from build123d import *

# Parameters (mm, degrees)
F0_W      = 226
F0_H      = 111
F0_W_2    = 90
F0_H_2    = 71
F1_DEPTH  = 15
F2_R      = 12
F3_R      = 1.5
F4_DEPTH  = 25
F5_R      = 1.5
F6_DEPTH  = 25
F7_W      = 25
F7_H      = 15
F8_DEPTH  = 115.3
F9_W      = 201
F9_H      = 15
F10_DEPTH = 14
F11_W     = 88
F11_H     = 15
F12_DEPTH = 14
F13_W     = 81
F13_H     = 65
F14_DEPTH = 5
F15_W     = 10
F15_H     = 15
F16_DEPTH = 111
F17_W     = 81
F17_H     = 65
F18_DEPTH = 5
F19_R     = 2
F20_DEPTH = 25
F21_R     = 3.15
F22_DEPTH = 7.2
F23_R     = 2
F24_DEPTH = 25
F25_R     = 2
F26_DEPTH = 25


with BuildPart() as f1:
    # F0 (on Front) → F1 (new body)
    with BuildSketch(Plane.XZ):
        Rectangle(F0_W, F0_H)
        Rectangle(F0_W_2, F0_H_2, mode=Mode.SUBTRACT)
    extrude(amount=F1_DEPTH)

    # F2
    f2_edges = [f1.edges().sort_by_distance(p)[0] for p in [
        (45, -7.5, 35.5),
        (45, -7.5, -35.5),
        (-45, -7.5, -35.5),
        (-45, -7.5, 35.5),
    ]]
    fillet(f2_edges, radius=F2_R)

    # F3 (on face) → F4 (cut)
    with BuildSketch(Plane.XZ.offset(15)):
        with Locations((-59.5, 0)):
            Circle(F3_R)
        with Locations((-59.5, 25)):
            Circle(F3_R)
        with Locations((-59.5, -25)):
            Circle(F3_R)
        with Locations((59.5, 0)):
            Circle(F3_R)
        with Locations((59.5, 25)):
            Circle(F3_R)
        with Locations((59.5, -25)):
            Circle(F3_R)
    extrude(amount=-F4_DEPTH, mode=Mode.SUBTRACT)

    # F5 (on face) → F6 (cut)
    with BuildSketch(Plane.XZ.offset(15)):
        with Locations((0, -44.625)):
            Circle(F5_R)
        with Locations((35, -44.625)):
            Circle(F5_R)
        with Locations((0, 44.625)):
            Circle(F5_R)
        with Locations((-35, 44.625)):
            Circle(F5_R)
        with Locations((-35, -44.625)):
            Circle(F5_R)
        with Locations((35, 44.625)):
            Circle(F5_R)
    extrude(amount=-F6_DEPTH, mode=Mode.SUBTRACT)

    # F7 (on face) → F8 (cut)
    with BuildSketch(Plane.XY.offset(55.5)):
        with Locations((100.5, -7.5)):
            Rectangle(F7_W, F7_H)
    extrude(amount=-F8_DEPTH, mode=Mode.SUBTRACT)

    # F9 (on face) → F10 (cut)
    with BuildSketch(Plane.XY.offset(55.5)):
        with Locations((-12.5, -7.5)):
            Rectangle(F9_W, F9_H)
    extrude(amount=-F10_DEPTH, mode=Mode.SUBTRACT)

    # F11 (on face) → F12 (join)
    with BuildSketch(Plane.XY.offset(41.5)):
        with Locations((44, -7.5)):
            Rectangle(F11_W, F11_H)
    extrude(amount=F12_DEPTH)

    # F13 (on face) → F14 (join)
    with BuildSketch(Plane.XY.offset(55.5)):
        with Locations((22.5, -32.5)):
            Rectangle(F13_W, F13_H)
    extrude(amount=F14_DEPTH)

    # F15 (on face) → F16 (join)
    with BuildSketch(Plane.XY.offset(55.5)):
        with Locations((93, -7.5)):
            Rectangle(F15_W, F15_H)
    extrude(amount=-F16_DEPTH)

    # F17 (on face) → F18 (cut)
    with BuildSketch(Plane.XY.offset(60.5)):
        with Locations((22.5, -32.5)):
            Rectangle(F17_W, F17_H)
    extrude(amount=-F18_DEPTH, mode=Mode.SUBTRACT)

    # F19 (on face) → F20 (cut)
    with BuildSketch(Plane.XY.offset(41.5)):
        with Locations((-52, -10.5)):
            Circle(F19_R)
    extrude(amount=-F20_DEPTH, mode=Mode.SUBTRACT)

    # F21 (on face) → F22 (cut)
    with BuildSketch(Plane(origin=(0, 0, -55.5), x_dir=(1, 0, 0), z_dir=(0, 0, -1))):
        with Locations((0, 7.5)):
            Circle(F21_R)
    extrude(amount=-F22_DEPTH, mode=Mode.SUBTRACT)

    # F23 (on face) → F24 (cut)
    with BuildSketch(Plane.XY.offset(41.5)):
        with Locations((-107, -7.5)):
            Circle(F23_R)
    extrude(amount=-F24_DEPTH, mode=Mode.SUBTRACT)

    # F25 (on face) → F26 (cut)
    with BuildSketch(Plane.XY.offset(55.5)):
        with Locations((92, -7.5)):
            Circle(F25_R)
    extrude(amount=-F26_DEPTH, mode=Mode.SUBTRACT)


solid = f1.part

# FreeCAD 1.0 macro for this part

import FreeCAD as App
import Part
import Sketcher


def edges_at(feature, points):
    """Names of the edges that pass closest to the given points."""
    edges = feature.Shape.Edges
    near = lambda p: min(range(len(edges)), key=lambda i: edges[i].distToShape(Part.Vertex(*p))[0])
    return sorted({f"Edge{near(p) + 1}" for p in points})


def add_polygon(sketch, points):
    """Adds a closed chain of lines whose ends are joined by coincident constraints."""
    first, n = sketch.GeometryCount, len(points)
    for a, b in zip(points, points[1:] + points[:1]):
        sketch.addGeometry(Part.LineSegment(App.Vector(*a, 0), App.Vector(*b, 0)), False)
    for i in range(n):
        sketch.addConstraint(Sketcher.Constraint("Coincident", first + i, 2, first + (i + 1) % n, 1))

doc = App.newDocument("Part")
params = doc.addObject("Spreadsheet::Sheet", "Params")
for row, (alias, value) in enumerate([
    ("sketch1_width", "226 mm"),
    ("sketch1_width2", "90 mm"),
    ("sketch1_height", "111 mm"),
    ("sketch1_height2", "71 mm"),
    ("pad1_length", "15 mm"),
    ("fillet_radius", "12 mm"),
    ("sketch2_diameter", "3 mm"),
    ("pocket1_length", "25 mm"),
    ("sketch3_diameter", "3 mm"),
    ("pocket2_length", "25 mm"),
    ("sketch4_width", "25 mm"),
    ("sketch4_height", "15 mm"),
    ("pocket3_length", "115.3 mm"),
    ("sketch5_width", "201 mm"),
    ("sketch5_height", "15 mm"),
    ("pocket4_length", "14 mm"),
    ("sketch6_width", "88 mm"),
    ("sketch6_height", "15 mm"),
    ("pad2_length", "14 mm"),
    ("sketch7_width", "81 mm"),
    ("sketch7_height", "65 mm"),
    ("pad3_length", "5 mm"),
    ("sketch8_width", "10 mm"),
    ("sketch8_height", "15 mm"),
    ("pad4_length", "111 mm"),
    ("sketch9_width", "81 mm"),
    ("sketch9_height", "65 mm"),
    ("pocket5_length", "5 mm"),
    ("sketch10_diameter", "4 mm"),
    ("pocket6_length", "25 mm"),
    ("sketch11_diameter", "6.3 mm"),
    ("pocket7_length", "7.2 mm"),
    ("sketch12_diameter", "4 mm"),
    ("pocket8_length", "25 mm"),
    ("sketch13_diameter", "4 mm"),
    ("pocket9_length", "25 mm"),
], start=1):
    params.set(f"A{row}", alias)
    params.set(f"B{row}", "=" + value)
    params.setAlias(f"B{row}", alias)

body = doc.addObject("PartDesign::Body", "Body")

# Sketch on XZ plane
sketch1 = body.newObject("Sketcher::SketchObject", "Sketch")
sketch1.AttachmentSupport = (doc.getObject("XZ_Plane"), [""])
sketch1.MapMode = "FlatFace"
add_polygon(sketch1, [(-113, 56), (-113, -56), (113, -56), (113, 56)])  # lines 0-3
add_polygon(sketch1, [(45, -36), (-45, -36), (-45, 36), (45, 36)])  # lines 4-7
sketch1.addConstraint(Sketcher.Constraint("Vertical", 0))
sketch1.addConstraint(Sketcher.Constraint("Horizontal", 1))
sketch1.addConstraint(Sketcher.Constraint("Vertical", 2))
sketch1.addConstraint(Sketcher.Constraint("Horizontal", 3))
sketch1.addConstraint(Sketcher.Constraint("Horizontal", 4))
sketch1.addConstraint(Sketcher.Constraint("Vertical", 5))
sketch1.addConstraint(Sketcher.Constraint("Horizontal", 6))
sketch1.addConstraint(Sketcher.Constraint("Vertical", 7))
sketch1.addConstraint(Sketcher.Constraint("Symmetric", 0, 2, 2, 2, -1, 1))
sketch1.addConstraint(Sketcher.Constraint("Symmetric", 4, 2, 6, 2, -1, 1))
sketch1.addConstraint(Sketcher.Constraint("DistanceX", 1, 1, 1, 2, 226.0))
sketch1.addConstraint(Sketcher.Constraint("DistanceX", 4, 2, 4, 1, 90.0))
sketch1.addConstraint(Sketcher.Constraint("DistanceY", 0, 2, 0, 1, 111.0))
sketch1.addConstraint(Sketcher.Constraint("DistanceY", 5, 1, 5, 2, 71.0))
sketch1.setExpression("Constraints[18]", "Params.sketch1_width")
sketch1.setExpression("Constraints[19]", "Params.sketch1_width2")
sketch1.setExpression("Constraints[20]", "Params.sketch1_height")
sketch1.setExpression("Constraints[21]", "Params.sketch1_height2")
pad1 = body.newObject("PartDesign::Pad", "Pad")
pad1.Profile = sketch1
pad1.setExpression("Length", "Params.pad1_length")
doc.recompute()

fillet = body.newObject("PartDesign::Fillet", "Fillet")
fillet.Base = (pad1, edges_at(pad1, [
    (45, -7.5, 35.5),
    (45, -7.5, -35.5),
    (-45, -7.5, -35.5),
    (-45, -7.5, 35.5),
]))
fillet.setExpression("Radius", "Params.fillet_radius")

# Sketch on XZ plane
sketch2 = body.newObject("Sketcher::SketchObject", "Sketch001")
sketch2.AttachmentSupport = (doc.getObject("XZ_Plane"), [""])
sketch2.MapMode = "FlatFace"
sketch2.AttachmentOffset = App.Placement(App.Vector(0, 0, 15), App.Rotation())
sketch2.addGeometry(Part.Circle(App.Vector(-59.5, 0, 0), App.Vector(0, 0, 1), 1.5), False)
sketch2.addGeometry(Part.Circle(App.Vector(-59.5, 25, 0), App.Vector(0, 0, 1), 1.5), False)
sketch2.addGeometry(Part.Circle(App.Vector(-59.5, -25, 0), App.Vector(0, 0, 1), 1.5), False)
sketch2.addGeometry(Part.Circle(App.Vector(59.5, 0, 0), App.Vector(0, 0, 1), 1.5), False)
sketch2.addGeometry(Part.Circle(App.Vector(59.5, 25, 0), App.Vector(0, 0, 1), 1.5), False)
sketch2.addGeometry(Part.Circle(App.Vector(59.5, -25, 0), App.Vector(0, 0, 1), 1.5), False)
sketch2.addConstraint(Sketcher.Constraint("Equal", 0, 1))
sketch2.addConstraint(Sketcher.Constraint("Equal", 1, 2))
sketch2.addConstraint(Sketcher.Constraint("Equal", 2, 3))
sketch2.addConstraint(Sketcher.Constraint("Equal", 3, 4))
sketch2.addConstraint(Sketcher.Constraint("Equal", 4, 5))
sketch2.addConstraint(Sketcher.Constraint("Symmetric", 0, 3, 3, 3, -1, 1))
sketch2.addConstraint(Sketcher.Constraint("Symmetric", 2, 3, 4, 3, -1, 1))
sketch2.addConstraint(Sketcher.Constraint("Symmetric", 1, 3, 5, 3, -1, 1))
sketch2.addConstraint(Sketcher.Constraint("Symmetric", 1, 3, 4, 3, -2))
sketch2.addConstraint(Sketcher.Constraint("PointOnObject", 0, 3, -1))
sketch2.addConstraint(Sketcher.Constraint("Vertical", 0, 3, 1, 3))
sketch2.addConstraint(Sketcher.Constraint("Diameter", 0, 3.0))
sketch2.addConstraint(Sketcher.Constraint("DistanceY", -1, 1, 1, 3, 25.0))
sketch2.addConstraint(Sketcher.Constraint("DistanceX", 0, 3, 3, 3, 119.0))
sketch2.setExpression("Constraints[11]", "Params.sketch2_diameter")
pocket1 = body.newObject("PartDesign::Pocket", "Pocket")
pocket1.Profile = sketch2
pocket1.setExpression("Length", "Params.pocket1_length")

# Sketch on XZ plane
sketch3 = body.newObject("Sketcher::SketchObject", "Sketch002")
sketch3.AttachmentSupport = (doc.getObject("XZ_Plane"), [""])
sketch3.MapMode = "FlatFace"
sketch3.AttachmentOffset = App.Placement(App.Vector(0, 0, 15), App.Rotation())
sketch3.addGeometry(Part.Circle(App.Vector(0, -44.6, 0), App.Vector(0, 0, 1), 1.5), False)
sketch3.addGeometry(Part.Circle(App.Vector(35, -44.6, 0), App.Vector(0, 0, 1), 1.5), False)
sketch3.addGeometry(Part.Circle(App.Vector(0, 44.6, 0), App.Vector(0, 0, 1), 1.5), False)
sketch3.addGeometry(Part.Circle(App.Vector(-35, 44.6, 0), App.Vector(0, 0, 1), 1.5), False)
sketch3.addGeometry(Part.Circle(App.Vector(-35, -44.6, 0), App.Vector(0, 0, 1), 1.5), False)
sketch3.addGeometry(Part.Circle(App.Vector(35, 44.6, 0), App.Vector(0, 0, 1), 1.5), False)
sketch3.addConstraint(Sketcher.Constraint("Equal", 0, 1))
sketch3.addConstraint(Sketcher.Constraint("Equal", 1, 2))
sketch3.addConstraint(Sketcher.Constraint("Equal", 2, 3))
sketch3.addConstraint(Sketcher.Constraint("Equal", 3, 4))
sketch3.addConstraint(Sketcher.Constraint("Equal", 4, 5))
sketch3.addConstraint(Sketcher.Constraint("Symmetric", 0, 3, 2, 3, -1, 1))
sketch3.addConstraint(Sketcher.Constraint("Symmetric", 1, 3, 3, 3, -1, 1))
sketch3.addConstraint(Sketcher.Constraint("Symmetric", 4, 3, 5, 3, -1, 1))
sketch3.addConstraint(Sketcher.Constraint("Symmetric", 1, 3, 4, 3, -2))
sketch3.addConstraint(Sketcher.Constraint("PointOnObject", 0, 3, -2))
sketch3.addConstraint(Sketcher.Constraint("Horizontal", 0, 3, 1, 3))
sketch3.addConstraint(Sketcher.Constraint("Diameter", 0, 3.0))
sketch3.addConstraint(Sketcher.Constraint("DistanceX", -1, 1, 1, 3, 35.0))
sketch3.addConstraint(Sketcher.Constraint("DistanceY", 0, 3, 2, 3, 89.25))
sketch3.setExpression("Constraints[11]", "Params.sketch3_diameter")
pocket2 = body.newObject("PartDesign::Pocket", "Pocket001")
pocket2.Profile = sketch3
pocket2.setExpression("Length", "Params.pocket2_length")

# Sketch on XY plane
sketch4 = body.newObject("Sketcher::SketchObject", "Sketch003")
sketch4.AttachmentSupport = (doc.getObject("XY_Plane"), [""])
sketch4.MapMode = "FlatFace"
sketch4.AttachmentOffset = App.Placement(App.Vector(0, 0, 55.5), App.Rotation())
add_polygon(sketch4, [(88, 0), (88, -15), (113, -15), (113, 0)])  # lines 0-3
sketch4.addConstraint(Sketcher.Constraint("Vertical", 0))
sketch4.addConstraint(Sketcher.Constraint("Horizontal", 1))
sketch4.addConstraint(Sketcher.Constraint("Vertical", 2))
sketch4.addConstraint(Sketcher.Constraint("Horizontal", 3))
sketch4.addConstraint(Sketcher.Constraint("PointOnObject", 2, 2, -1))
sketch4.addConstraint(Sketcher.Constraint("DistanceX", 1, 1, 1, 2, 25.0))
sketch4.addConstraint(Sketcher.Constraint("DistanceY", 0, 2, 0, 1, 15.0))
sketch4.addConstraint(Sketcher.Constraint("DistanceX", -1, 1, 0, 2, 88.0))
sketch4.setExpression("Constraints[9]", "Params.sketch4_width")
sketch4.setExpression("Constraints[10]", "Params.sketch4_height")
pocket3 = body.newObject("PartDesign::Pocket", "Pocket002")
pocket3.Profile = sketch4
pocket3.setExpression("Length", "Params.pocket3_length")

# Sketch on XY plane
sketch5 = body.newObject("Sketcher::SketchObject", "Sketch004")
sketch5.AttachmentSupport = (doc.getObject("XY_Plane"), [""])
sketch5.MapMode = "FlatFace"
sketch5.AttachmentOffset = App.Placement(App.Vector(0, 0, 55.5), App.Rotation())
add_polygon(sketch5, [(-113, 0), (-113, -15), (88, -15), (88, 0)])  # lines 0-3
sketch5.addConstraint(Sketcher.Constraint("Vertical", 0))
sketch5.addConstraint(Sketcher.Constraint("Horizontal", 1))
sketch5.addConstraint(Sketcher.Constraint("Vertical", 2))
sketch5.addConstraint(Sketcher.Constraint("Horizontal", 3))
sketch5.addConstraint(Sketcher.Constraint("PointOnObject", 2, 2, -1))
sketch5.addConstraint(Sketcher.Constraint("DistanceX", 1, 1, 1, 2, 201.0))
sketch5.addConstraint(Sketcher.Constraint("DistanceY", 0, 2, 0, 1, 15.0))
sketch5.addConstraint(Sketcher.Constraint("DistanceX", 0, 2, -1, 1, 113.0))
sketch5.setExpression("Constraints[9]", "Params.sketch5_width")
sketch5.setExpression("Constraints[10]", "Params.sketch5_height")
pocket4 = body.newObject("PartDesign::Pocket", "Pocket003")
pocket4.Profile = sketch5
pocket4.setExpression("Length", "Params.pocket4_length")

# Sketch on XY plane
sketch6 = body.newObject("Sketcher::SketchObject", "Sketch005")
sketch6.AttachmentSupport = (doc.getObject("XY_Plane"), [""])
sketch6.MapMode = "FlatFace"
sketch6.AttachmentOffset = App.Placement(App.Vector(0, 0, 41.5), App.Rotation())
add_polygon(sketch6, [(0, 0), (0, -15), (88, -15), (88, 0)])  # lines 0-3
sketch6.addConstraint(Sketcher.Constraint("Vertical", 0))
sketch6.addConstraint(Sketcher.Constraint("Horizontal", 1))
sketch6.addConstraint(Sketcher.Constraint("Vertical", 2))
sketch6.addConstraint(Sketcher.Constraint("Horizontal", 3))
sketch6.addConstraint(Sketcher.Constraint("Coincident", 3, 2, -1, 1))
sketch6.addConstraint(Sketcher.Constraint("DistanceX", 1, 1, 1, 2, 88.0))
sketch6.addConstraint(Sketcher.Constraint("DistanceY", 0, 2, 0, 1, 15.0))
sketch6.setExpression("Constraints[9]", "Params.sketch6_width")
sketch6.setExpression("Constraints[10]", "Params.sketch6_height")
pad2 = body.newObject("PartDesign::Pad", "Pad001")
pad2.Profile = sketch6
pad2.setExpression("Length", "Params.pad2_length")

# Sketch on XY plane
sketch7 = body.newObject("Sketcher::SketchObject", "Sketch006")
sketch7.AttachmentSupport = (doc.getObject("XY_Plane"), [""])
sketch7.MapMode = "FlatFace"
sketch7.AttachmentOffset = App.Placement(App.Vector(0, 0, 55.5), App.Rotation())
add_polygon(sketch7, [(-18, 0), (-18, -65), (63, -65), (63, 0)])  # lines 0-3
sketch7.addConstraint(Sketcher.Constraint("Vertical", 0))
sketch7.addConstraint(Sketcher.Constraint("Horizontal", 1))
sketch7.addConstraint(Sketcher.Constraint("Vertical", 2))
sketch7.addConstraint(Sketcher.Constraint("Horizontal", 3))
sketch7.addConstraint(Sketcher.Constraint("PointOnObject", 2, 2, -1))
sketch7.addConstraint(Sketcher.Constraint("DistanceX", 1, 1, 1, 2, 81.0))
sketch7.addConstraint(Sketcher.Constraint("DistanceY", 0, 2, 0, 1, 65.0))
sketch7.addConstraint(Sketcher.Constraint("DistanceX", 0, 2, -1, 1, 18.0))
sketch7.setExpression("Constraints[9]", "Params.sketch7_width")
sketch7.setExpression("Constraints[10]", "Params.sketch7_height")
pad3 = body.newObject("PartDesign::Pad", "Pad002")
pad3.Profile = sketch7
pad3.setExpression("Length", "Params.pad3_length")

# Sketch on XY plane
sketch8 = body.newObject("Sketcher::SketchObject", "Sketch007")
sketch8.AttachmentSupport = (doc.getObject("XY_Plane"), [""])
sketch8.MapMode = "FlatFace"
sketch8.AttachmentOffset = App.Placement(App.Vector(0, 0, 55.5), App.Rotation())
add_polygon(sketch8, [(88, 0), (88, -15), (98, -15), (98, 0)])  # lines 0-3
sketch8.addConstraint(Sketcher.Constraint("Vertical", 0))
sketch8.addConstraint(Sketcher.Constraint("Horizontal", 1))
sketch8.addConstraint(Sketcher.Constraint("Vertical", 2))
sketch8.addConstraint(Sketcher.Constraint("Horizontal", 3))
sketch8.addConstraint(Sketcher.Constraint("PointOnObject", 2, 2, -1))
sketch8.addConstraint(Sketcher.Constraint("DistanceX", 1, 1, 1, 2, 10.0))
sketch8.addConstraint(Sketcher.Constraint("DistanceY", 0, 2, 0, 1, 15.0))
sketch8.addConstraint(Sketcher.Constraint("DistanceX", -1, 1, 0, 2, 88.0))
sketch8.setExpression("Constraints[9]", "Params.sketch8_width")
sketch8.setExpression("Constraints[10]", "Params.sketch8_height")
pad4 = body.newObject("PartDesign::Pad", "Pad003")
pad4.Profile = sketch8
pad4.setExpression("Length", "Params.pad4_length")
pad4.Reversed = True

# Sketch on XY plane
sketch9 = body.newObject("Sketcher::SketchObject", "Sketch008")
sketch9.AttachmentSupport = (doc.getObject("XY_Plane"), [""])
sketch9.MapMode = "FlatFace"
sketch9.AttachmentOffset = App.Placement(App.Vector(0, 0, 60.5), App.Rotation())
add_polygon(sketch9, [(-18, 0), (-18, -65), (63, -65), (63, 0)])  # lines 0-3
sketch9.addConstraint(Sketcher.Constraint("Vertical", 0))
sketch9.addConstraint(Sketcher.Constraint("Horizontal", 1))
sketch9.addConstraint(Sketcher.Constraint("Vertical", 2))
sketch9.addConstraint(Sketcher.Constraint("Horizontal", 3))
sketch9.addConstraint(Sketcher.Constraint("PointOnObject", 2, 2, -1))
sketch9.addConstraint(Sketcher.Constraint("DistanceX", 1, 1, 1, 2, 81.0))
sketch9.addConstraint(Sketcher.Constraint("DistanceY", 0, 2, 0, 1, 65.0))
sketch9.addConstraint(Sketcher.Constraint("DistanceX", 0, 2, -1, 1, 18.0))
sketch9.setExpression("Constraints[9]", "Params.sketch9_width")
sketch9.setExpression("Constraints[10]", "Params.sketch9_height")
pocket5 = body.newObject("PartDesign::Pocket", "Pocket004")
pocket5.Profile = sketch9
pocket5.setExpression("Length", "Params.pocket5_length")

# Sketch on XY plane
sketch10 = body.newObject("Sketcher::SketchObject", "Sketch009")
sketch10.AttachmentSupport = (doc.getObject("XY_Plane"), [""])
sketch10.MapMode = "FlatFace"
sketch10.AttachmentOffset = App.Placement(App.Vector(0, 0, 41.5), App.Rotation())
sketch10.addGeometry(Part.Circle(App.Vector(-52, -10.5, 0), App.Vector(0, 0, 1), 2), False)
sketch10.addConstraint(Sketcher.Constraint("Diameter", 0, 4.0))
sketch10.addConstraint(Sketcher.Constraint("DistanceX", 0, 3, -1, 1, 52.0))
sketch10.addConstraint(Sketcher.Constraint("DistanceY", 0, 3, -1, 1, 10.5))
sketch10.setExpression("Constraints[0]", "Params.sketch10_diameter")
pocket6 = body.newObject("PartDesign::Pocket", "Pocket005")
pocket6.Profile = sketch10
pocket6.setExpression("Length", "Params.pocket6_length")

# Sketch on XY plane
sketch11 = body.newObject("Sketcher::SketchObject", "Sketch010")
sketch11.AttachmentSupport = (doc.getObject("XY_Plane"), [""])
sketch11.MapMode = "FlatFace"
sketch11.AttachmentOffset = App.Placement(App.Vector(0, 0, -55.5), App.Rotation())
sketch11.addGeometry(Part.Circle(App.Vector(0, -7.5, 0), App.Vector(0, 0, 1), 3.1), False)
sketch11.addConstraint(Sketcher.Constraint("PointOnObject", 0, 3, -2))
sketch11.addConstraint(Sketcher.Constraint("Diameter", 0, 6.3))
sketch11.addConstraint(Sketcher.Constraint("DistanceY", 0, 3, -1, 1, 7.5))
sketch11.setExpression("Constraints[1]", "Params.sketch11_diameter")
pocket7 = body.newObject("PartDesign::Pocket", "Pocket006")
pocket7.Profile = sketch11
pocket7.setExpression("Length", "Params.pocket7_length")
pocket7.Reversed = True

# Sketch on XY plane
sketch12 = body.newObject("Sketcher::SketchObject", "Sketch011")
sketch12.AttachmentSupport = (doc.getObject("XY_Plane"), [""])
sketch12.MapMode = "FlatFace"
sketch12.AttachmentOffset = App.Placement(App.Vector(0, 0, 41.5), App.Rotation())
sketch12.addGeometry(Part.Circle(App.Vector(-107, -7.5, 0), App.Vector(0, 0, 1), 2), False)
sketch12.addConstraint(Sketcher.Constraint("Diameter", 0, 4.0))
sketch12.addConstraint(Sketcher.Constraint("DistanceX", 0, 3, -1, 1, 107.0))
sketch12.addConstraint(Sketcher.Constraint("DistanceY", 0, 3, -1, 1, 7.5))
sketch12.setExpression("Constraints[0]", "Params.sketch12_diameter")
pocket8 = body.newObject("PartDesign::Pocket", "Pocket007")
pocket8.Profile = sketch12
pocket8.setExpression("Length", "Params.pocket8_length")

# Sketch on XY plane
sketch13 = body.newObject("Sketcher::SketchObject", "Sketch012")
sketch13.AttachmentSupport = (doc.getObject("XY_Plane"), [""])
sketch13.MapMode = "FlatFace"
sketch13.AttachmentOffset = App.Placement(App.Vector(0, 0, 55.5), App.Rotation())
sketch13.addGeometry(Part.Circle(App.Vector(92, -7.5, 0), App.Vector(0, 0, 1), 2), False)
sketch13.addConstraint(Sketcher.Constraint("Diameter", 0, 4.0))
sketch13.addConstraint(Sketcher.Constraint("DistanceX", -1, 1, 0, 3, 92.0))
sketch13.addConstraint(Sketcher.Constraint("DistanceY", 0, 3, -1, 1, 7.5))
sketch13.setExpression("Constraints[0]", "Params.sketch13_diameter")
pocket9 = body.newObject("PartDesign::Pocket", "Pocket008")
pocket9.Profile = sketch13
pocket9.setExpression("Length", "Params.pocket9_length")

doc.recompute()
